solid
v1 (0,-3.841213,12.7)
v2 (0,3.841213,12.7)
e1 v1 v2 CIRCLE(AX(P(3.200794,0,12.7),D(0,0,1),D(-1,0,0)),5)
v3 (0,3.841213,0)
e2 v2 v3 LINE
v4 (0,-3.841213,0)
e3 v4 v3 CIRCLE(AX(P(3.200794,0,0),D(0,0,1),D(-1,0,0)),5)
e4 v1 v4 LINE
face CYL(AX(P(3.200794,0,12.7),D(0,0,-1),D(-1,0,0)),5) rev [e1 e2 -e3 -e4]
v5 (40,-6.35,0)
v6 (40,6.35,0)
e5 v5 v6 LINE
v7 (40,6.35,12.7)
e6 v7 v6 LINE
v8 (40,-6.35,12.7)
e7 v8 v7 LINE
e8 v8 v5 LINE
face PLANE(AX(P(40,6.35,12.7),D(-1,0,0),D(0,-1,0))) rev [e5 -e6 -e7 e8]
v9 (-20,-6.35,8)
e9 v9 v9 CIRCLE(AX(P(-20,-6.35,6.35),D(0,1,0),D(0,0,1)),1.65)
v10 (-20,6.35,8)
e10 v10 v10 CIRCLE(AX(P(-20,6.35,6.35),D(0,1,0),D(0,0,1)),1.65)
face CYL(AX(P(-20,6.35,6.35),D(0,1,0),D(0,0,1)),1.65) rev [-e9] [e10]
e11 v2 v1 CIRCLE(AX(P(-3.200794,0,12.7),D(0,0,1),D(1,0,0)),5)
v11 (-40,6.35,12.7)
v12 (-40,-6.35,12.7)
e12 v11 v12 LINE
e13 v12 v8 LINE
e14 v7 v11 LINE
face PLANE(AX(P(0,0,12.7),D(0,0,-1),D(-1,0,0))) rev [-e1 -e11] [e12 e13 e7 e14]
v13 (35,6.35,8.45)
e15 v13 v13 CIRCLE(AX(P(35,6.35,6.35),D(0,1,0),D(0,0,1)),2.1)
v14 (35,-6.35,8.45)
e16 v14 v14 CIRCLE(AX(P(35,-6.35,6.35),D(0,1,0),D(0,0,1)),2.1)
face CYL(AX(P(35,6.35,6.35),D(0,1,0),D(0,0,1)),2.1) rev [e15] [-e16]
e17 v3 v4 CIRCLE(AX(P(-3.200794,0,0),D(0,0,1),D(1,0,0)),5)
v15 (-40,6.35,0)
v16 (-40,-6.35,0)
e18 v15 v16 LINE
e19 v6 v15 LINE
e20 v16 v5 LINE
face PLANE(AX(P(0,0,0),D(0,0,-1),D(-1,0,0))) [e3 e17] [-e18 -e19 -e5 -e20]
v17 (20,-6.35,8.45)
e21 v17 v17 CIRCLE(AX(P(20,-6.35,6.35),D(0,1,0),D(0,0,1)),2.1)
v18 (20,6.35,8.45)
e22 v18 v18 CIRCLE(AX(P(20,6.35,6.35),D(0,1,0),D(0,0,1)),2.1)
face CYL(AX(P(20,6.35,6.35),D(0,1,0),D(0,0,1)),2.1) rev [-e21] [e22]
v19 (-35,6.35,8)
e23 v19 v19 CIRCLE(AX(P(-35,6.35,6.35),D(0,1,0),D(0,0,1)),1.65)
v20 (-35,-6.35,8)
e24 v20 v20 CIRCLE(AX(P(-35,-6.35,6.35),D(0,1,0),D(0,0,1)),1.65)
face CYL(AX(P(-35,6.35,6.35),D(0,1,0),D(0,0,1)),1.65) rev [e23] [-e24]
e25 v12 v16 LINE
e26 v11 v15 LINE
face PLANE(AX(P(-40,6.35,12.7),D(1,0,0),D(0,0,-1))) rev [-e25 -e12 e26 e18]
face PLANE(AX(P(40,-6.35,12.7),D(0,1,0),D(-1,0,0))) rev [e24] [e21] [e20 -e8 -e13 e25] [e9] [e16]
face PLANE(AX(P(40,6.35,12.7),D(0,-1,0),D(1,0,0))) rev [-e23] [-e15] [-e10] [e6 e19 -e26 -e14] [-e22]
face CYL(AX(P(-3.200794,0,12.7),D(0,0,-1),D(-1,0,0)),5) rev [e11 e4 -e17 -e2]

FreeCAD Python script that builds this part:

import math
import FreeCAD as App
import Part
import Sketcher

V = App.Vector


def add_polygon(sketch, points):
    """Adds a closed chain of lines whose ends are joined by coincident constraints."""
    first, n = sketch.GeometryCount, len(points)
    for a, b in zip(points, points[1:] + points[:1]):
        sketch.addGeometry(Part.LineSegment(App.Vector(*a, 0), App.Vector(*b, 0)), False)
    for i in range(n):
        sketch.addConstraint(Sketcher.Constraint("Coincident", first + i, 2, first + (i + 1) % n, 1))

doc = App.newDocument("Part")
params = doc.addObject("Spreadsheet::Sheet", "Params")
for row, (alias, value) in enumerate([
    ("sketch1_radius", "5 mm"),
    ("sketch1_width", "80 mm"),
    ("sketch1_height", "12.7 mm"),
    ("pad1_length", "12.7 mm"),
    ("sketch2_diameter", "3.3 mm"),
    ("hole_diameter", "3.3 mm"),
    ("sketch3_diameter", "4.2 mm"),
    ("hole2_diameter", "4.2 mm"),
], start=1):
    params.set(f"A{row}", alias)
    params.set(f"B{row}", "=" + value)
    params.setAlias(f"B{row}", alias)

body = doc.addObject("PartDesign::Body", "Body")

# Sketch on XY plane
sketch1 = body.newObject("Sketcher::SketchObject", "Sketch")
sketch1.AttachmentSupport = (doc.getObject("XY_Plane"), [""])
sketch1.MapMode = "FlatFace"
add_polygon(sketch1, [(-40, 6), (-40, -6), (40, -6), (40, 6)])  # lines 0-3
sketch1.addGeometry(Part.ArcOfCircle(Part.Circle(V(-3, 0, 0), V(0, 0, 1), 5), math.radians(50), math.radians(310)), False)  # 4
sketch1.addGeometry(Part.ArcOfCircle(Part.Circle(V(3, 0, 0), V(0, 0, 1), 5), math.radians(-130), math.radians(130)), False)  # 5
sketch1.addConstraint([
    Sketcher.Constraint("Coincident", 4, 1, 5, 2),
    Sketcher.Constraint("Coincident", 5, 1, 4, 2),
    Sketcher.Constraint("Vertical", 0),
    Sketcher.Constraint("Horizontal", 1),
    Sketcher.Constraint("Vertical", 2),
    Sketcher.Constraint("Horizontal", 3),
    Sketcher.Constraint("Equal", 4, 5),
    Sketcher.Constraint("Symmetric", 4, 3, 5, 3, -1, 1),
    Sketcher.Constraint("Symmetric", 0, 2, 2, 2, -1, 1),
    Sketcher.Constraint("PointOnObject", 4, 3, -1),
    Sketcher.Constraint("Radius", 4, 5.0),
    Sketcher.Constraint("DistanceX", 1, 1, 1, 2, 80.0),
    Sketcher.Constraint("DistanceY", 0, 2, 0, 1, 12.7),
    Sketcher.Constraint("DistanceX", 4, 3, 5, 3, 6.401588),
])
sketch1.setExpression("Constraints[14]", "Params.sketch1_radius")
sketch1.setExpression("Constraints[15]", "Params.sketch1_width")
sketch1.setExpression("Constraints[16]", "Params.sketch1_height")
pad1 = body.newObject("PartDesign::Pad", "Pad")
pad1.Profile = sketch1
pad1.setExpression("Length", "Params.pad1_length")

# Sketch on XZ plane
sketch2 = body.newObject("Sketcher::SketchObject", "Sketch001")
sketch2.AttachmentSupport = (doc.getObject("XZ_Plane"), [""])
sketch2.MapMode = "FlatFace"
sketch2.AttachmentOffset = App.Placement(V(0, 0, -6.35), App.Rotation())
sketch2.addGeometry([
    Part.Circle(V(-35, 6.3, 0), V(0, 0, 1), 1.6),
    Part.Circle(V(-20, 6.3, 0), V(0, 0, 1), 1.6),
], False)
sketch2.addConstraint([
    Sketcher.Constraint("Equal", 0, 1),
    Sketcher.Constraint("Horizontal", 0, 3, 1, 3),
    Sketcher.Constraint("Diameter", 0, 3.3),
    Sketcher.Constraint("DistanceX", 0, 3, -1, 1, 35.0),
    Sketcher.Constraint("DistanceX", 1, 3, -1, 1, 20.0),
    Sketcher.Constraint("DistanceY", -1, 1, 0, 3, 6.35),
])
sketch2.setExpression("Constraints[2]", "Params.sketch2_diameter")
doc.recompute()
hole = body.newObject("PartDesign::Hole", "Hole")
hole.Profile = sketch2
hole.ThreadType = "None"
hole.setExpression("Diameter", "Params.hole_diameter")
hole.DepthType = "ThroughAll"
hole.Reversed = True

# Sketch on XZ plane
sketch3 = body.newObject("Sketcher::SketchObject", "Sketch002")
sketch3.AttachmentSupport = (doc.getObject("XZ_Plane"), [""])
sketch3.MapMode = "FlatFace"
sketch3.AttachmentOffset = App.Placement(V(0, 0, -6.35), App.Rotation())
sketch3.addGeometry([
    Part.Circle(V(35, 6.3, 0), V(0, 0, 1), 2.1),
    Part.Circle(V(20, 6.3, 0), V(0, 0, 1), 2.1),
], False)
sketch3.addConstraint([
    Sketcher.Constraint("Equal", 0, 1),
    Sketcher.Constraint("Horizontal", 0, 3, 1, 3),
    Sketcher.Constraint("Diameter", 0, 4.2),
    Sketcher.Constraint("DistanceX", -1, 1, 0, 3, 35.0),
    Sketcher.Constraint("DistanceX", -1, 1, 1, 3, 20.0),
    Sketcher.Constraint("DistanceY", -1, 1, 0, 3, 6.35),
])
sketch3.setExpression("Constraints[2]", "Params.sketch3_diameter")
doc.recompute()
hole2 = body.newObject("PartDesign::Hole", "Hole001")
hole2.Profile = sketch3
hole2.ThreadType = "None"
hole2.setExpression("Diameter", "Params.hole2_diameter")
hole2.DepthType = "ThroughAll"
hole2.Reversed = True

doc.recompute()
